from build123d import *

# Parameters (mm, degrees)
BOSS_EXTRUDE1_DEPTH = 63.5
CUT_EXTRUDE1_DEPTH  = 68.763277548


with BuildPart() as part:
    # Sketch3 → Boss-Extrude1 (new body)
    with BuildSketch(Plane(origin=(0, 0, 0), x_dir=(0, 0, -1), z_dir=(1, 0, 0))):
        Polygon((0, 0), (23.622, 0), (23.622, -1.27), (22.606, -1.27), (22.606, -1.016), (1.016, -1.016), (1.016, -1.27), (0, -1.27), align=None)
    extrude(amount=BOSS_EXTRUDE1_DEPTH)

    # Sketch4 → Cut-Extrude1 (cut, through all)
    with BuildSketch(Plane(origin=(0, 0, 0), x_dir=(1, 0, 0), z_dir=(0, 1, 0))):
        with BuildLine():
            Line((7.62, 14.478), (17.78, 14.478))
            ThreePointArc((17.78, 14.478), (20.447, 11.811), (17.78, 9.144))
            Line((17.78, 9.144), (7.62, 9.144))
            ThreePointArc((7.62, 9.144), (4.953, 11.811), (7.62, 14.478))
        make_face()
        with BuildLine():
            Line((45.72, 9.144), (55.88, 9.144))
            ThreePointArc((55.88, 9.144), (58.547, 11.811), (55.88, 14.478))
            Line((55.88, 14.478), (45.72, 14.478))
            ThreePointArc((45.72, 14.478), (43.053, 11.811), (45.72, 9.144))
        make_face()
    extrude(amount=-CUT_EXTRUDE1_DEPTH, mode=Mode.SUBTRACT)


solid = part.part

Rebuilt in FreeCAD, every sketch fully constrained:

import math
import FreeCAD as App
import Part
import Sketcher
Q = App.Units.Quantity


def add_polygon(sketch, points):
    """Adds a closed chain of lines whose ends are joined by coincident constraints."""
    first, n = sketch.GeometryCount, len(points)
    for a, b in zip(points, points[1:] + points[:1]):
        sketch.addGeometry(Part.LineSegment(App.Vector(*a, 0), App.Vector(*b, 0)), False)
    for i in range(n):
        sketch.addConstraint(Sketcher.Constraint("Coincident", first + i, 2, first + (i + 1) % n, 1))

doc = App.newDocument("Part")
body = doc.addObject("PartDesign::Body", "Body")

# Sketch on YZ plane
sketch1 = doc.addObject("Sketcher::SketchObject", "Sketch")
body.addObject(sketch1)
sketch1.AttachmentSupport = (doc.YZ_Plane, [""])
sketch1.MapMode = "FlatFace"
add_polygon(sketch1, [(0, -23.62), (0, 0), (-1.27, 0), (-1.27, -1.02), (-1.02, -1.02), (-1.02, -22.61), (-1.27, -22.61), (-1.27, -23.62)])  # lines 0-7
sketch1.addConstraint(Sketcher.Constraint("Vertical", 0))
sketch1.addConstraint(Sketcher.Constraint("Horizontal", 1))
sketch1.addConstraint(Sketcher.Constraint("Vertical", 2))
sketch1.addConstraint(Sketcher.Constraint("Horizontal", 3))
sketch1.addConstraint(Sketcher.Constraint("Vertical", 4))
sketch1.addConstraint(Sketcher.Constraint("Horizontal", 5))
sketch1.addConstraint(Sketcher.Constraint("Vertical", 6))
sketch1.addConstraint(Sketcher.Constraint("Horizontal", 7))
sketch1.addConstraint(Sketcher.Constraint("Coincident", 0, 2, -1, 1))
sketch1.addConstraint(Sketcher.Constraint("Vertical", 2, 2, 5, 2))
sketch1.addConstraint(Sketcher.Constraint("Equal", 2, 6))
sketch1.addConstraint(Sketcher.Constraint("DistanceX", 1, 2, 1, 1, Q("0.05 in")))
sketch1.addConstraint(Sketcher.Constraint("DistanceX", 3, 1, 3, 2, Q("0.01 in")))
sketch1.addConstraint(Sketcher.Constraint("DistanceY", 0, 1, 0, 2, Q("0.93 in")))
sketch1.addConstraint(Sketcher.Constraint("DistanceY", 2, 2, 2, 1, Q("0.04 in")))
pad1 = doc.addObject("PartDesign::Pad", "Pad")
body.addObject(pad1)
pad1.Profile = sketch1
pad1.Length = Q("2.5 in")

# Sketch on XZ plane
sketch2 = doc.addObject("Sketcher::SketchObject", "Sketch001")
body.addObject(sketch2)
sketch2.AttachmentSupport = (doc.XZ_Plane, [""])
sketch2.MapMode = "FlatFace"
sketch2.addGeometry(Part.LineSegment(App.Vector(17.8, -14.5, 0), App.Vector(7.6, -14.5, 0)), False)
sketch2.addGeometry(Part.ArcOfCircle(Part.Circle(App.Vector(7.6, -11.8, 0), App.Vector(0, 0, 1), 2.7), math.radians(90), math.radians(270)), False)
sketch2.addGeometry(Part.LineSegment(App.Vector(7.6, -9.1, 0), App.Vector(17.8, -9.1, 0)), False)
sketch2.addGeometry(Part.ArcOfCircle(Part.Circle(App.Vector(17.8, -11.8, 0), App.Vector(0, 0, 1), 2.7), math.radians(-90), math.radians(90)), False)
sketch2.addGeometry(Part.LineSegment(App.Vector(45.7, -9.1, 0), App.Vector(55.9, -9.1, 0)), False)
sketch2.addGeometry(Part.ArcOfCircle(Part.Circle(App.Vector(55.9, -11.8, 0), App.Vector(0, 0, 1), 2.7), math.radians(-90), math.radians(90)), False)
sketch2.addGeometry(Part.LineSegment(App.Vector(55.9, -14.5, 0), App.Vector(45.7, -14.5, 0)), False)
sketch2.addGeometry(Part.ArcOfCircle(Part.Circle(App.Vector(45.7, -11.8, 0), App.Vector(0, 0, 1), 2.7), math.radians(90), math.radians(270)), False)
sketch2.addConstraint(Sketcher.Constraint("Tangent", 0, 2, 1, 2))
sketch2.addConstraint(Sketcher.Constraint("Tangent", 1, 1, 2, 1))
sketch2.addConstraint(Sketcher.Constraint("Tangent", 2, 2, 3, 2))
sketch2.addConstraint(Sketcher.Constraint("Tangent", 3, 1, 0, 1))
sketch2.addConstraint(Sketcher.Constraint("Tangent", 4, 2, 5, 2))
sketch2.addConstraint(Sketcher.Constraint("Tangent", 5, 1, 6, 1))
sketch2.addConstraint(Sketcher.Constraint("Tangent", 6, 2, 7, 2))
sketch2.addConstraint(Sketcher.Constraint("Tangent", 7, 1, 4, 1))
sketch2.addConstraint(Sketcher.Constraint("Horizontal", 0))
sketch2.addConstraint(Sketcher.Constraint("Horizontal", 2))
sketch2.addConstraint(Sketcher.Constraint("Horizontal", 4))
sketch2.addConstraint(Sketcher.Constraint("Horizontal", 6))
sketch2.addConstraint(Sketcher.Constraint("Equal", 3, 5))
sketch2.addConstraint(Sketcher.Constraint("Horizontal", 3, 3, 5, 3))
sketch2.addConstraint(Sketcher.Constraint("Equal", 2, 4))
sketch2.addConstraint(Sketcher.Constraint("DistanceX", 0, 2, 0, 1, Q("0.4 in")))
sketch2.addConstraint(Sketcher.Constraint("Radius", 1, Q("0.105 in")))
sketch2.addConstraint(Sketcher.Constraint("DistanceX", -1, 1, 1, 3, Q("0.3 in")))
sketch2.addConstraint(Sketcher.Constraint("DistanceX", -1, 1, 5, 3, Q("2.2 in")))
sketch2.addConstraint(Sketcher.Constraint("DistanceY", 0, 2, -1, 1, Q("0.57 in")))
pocket1 = doc.addObject("PartDesign::Pocket", "Pocket")
body.addObject(pocket1)
pocket1.Profile = sketch2
pocket1.Type = "ThroughAll"
pocket1.Reversed = True

doc.recompute()
